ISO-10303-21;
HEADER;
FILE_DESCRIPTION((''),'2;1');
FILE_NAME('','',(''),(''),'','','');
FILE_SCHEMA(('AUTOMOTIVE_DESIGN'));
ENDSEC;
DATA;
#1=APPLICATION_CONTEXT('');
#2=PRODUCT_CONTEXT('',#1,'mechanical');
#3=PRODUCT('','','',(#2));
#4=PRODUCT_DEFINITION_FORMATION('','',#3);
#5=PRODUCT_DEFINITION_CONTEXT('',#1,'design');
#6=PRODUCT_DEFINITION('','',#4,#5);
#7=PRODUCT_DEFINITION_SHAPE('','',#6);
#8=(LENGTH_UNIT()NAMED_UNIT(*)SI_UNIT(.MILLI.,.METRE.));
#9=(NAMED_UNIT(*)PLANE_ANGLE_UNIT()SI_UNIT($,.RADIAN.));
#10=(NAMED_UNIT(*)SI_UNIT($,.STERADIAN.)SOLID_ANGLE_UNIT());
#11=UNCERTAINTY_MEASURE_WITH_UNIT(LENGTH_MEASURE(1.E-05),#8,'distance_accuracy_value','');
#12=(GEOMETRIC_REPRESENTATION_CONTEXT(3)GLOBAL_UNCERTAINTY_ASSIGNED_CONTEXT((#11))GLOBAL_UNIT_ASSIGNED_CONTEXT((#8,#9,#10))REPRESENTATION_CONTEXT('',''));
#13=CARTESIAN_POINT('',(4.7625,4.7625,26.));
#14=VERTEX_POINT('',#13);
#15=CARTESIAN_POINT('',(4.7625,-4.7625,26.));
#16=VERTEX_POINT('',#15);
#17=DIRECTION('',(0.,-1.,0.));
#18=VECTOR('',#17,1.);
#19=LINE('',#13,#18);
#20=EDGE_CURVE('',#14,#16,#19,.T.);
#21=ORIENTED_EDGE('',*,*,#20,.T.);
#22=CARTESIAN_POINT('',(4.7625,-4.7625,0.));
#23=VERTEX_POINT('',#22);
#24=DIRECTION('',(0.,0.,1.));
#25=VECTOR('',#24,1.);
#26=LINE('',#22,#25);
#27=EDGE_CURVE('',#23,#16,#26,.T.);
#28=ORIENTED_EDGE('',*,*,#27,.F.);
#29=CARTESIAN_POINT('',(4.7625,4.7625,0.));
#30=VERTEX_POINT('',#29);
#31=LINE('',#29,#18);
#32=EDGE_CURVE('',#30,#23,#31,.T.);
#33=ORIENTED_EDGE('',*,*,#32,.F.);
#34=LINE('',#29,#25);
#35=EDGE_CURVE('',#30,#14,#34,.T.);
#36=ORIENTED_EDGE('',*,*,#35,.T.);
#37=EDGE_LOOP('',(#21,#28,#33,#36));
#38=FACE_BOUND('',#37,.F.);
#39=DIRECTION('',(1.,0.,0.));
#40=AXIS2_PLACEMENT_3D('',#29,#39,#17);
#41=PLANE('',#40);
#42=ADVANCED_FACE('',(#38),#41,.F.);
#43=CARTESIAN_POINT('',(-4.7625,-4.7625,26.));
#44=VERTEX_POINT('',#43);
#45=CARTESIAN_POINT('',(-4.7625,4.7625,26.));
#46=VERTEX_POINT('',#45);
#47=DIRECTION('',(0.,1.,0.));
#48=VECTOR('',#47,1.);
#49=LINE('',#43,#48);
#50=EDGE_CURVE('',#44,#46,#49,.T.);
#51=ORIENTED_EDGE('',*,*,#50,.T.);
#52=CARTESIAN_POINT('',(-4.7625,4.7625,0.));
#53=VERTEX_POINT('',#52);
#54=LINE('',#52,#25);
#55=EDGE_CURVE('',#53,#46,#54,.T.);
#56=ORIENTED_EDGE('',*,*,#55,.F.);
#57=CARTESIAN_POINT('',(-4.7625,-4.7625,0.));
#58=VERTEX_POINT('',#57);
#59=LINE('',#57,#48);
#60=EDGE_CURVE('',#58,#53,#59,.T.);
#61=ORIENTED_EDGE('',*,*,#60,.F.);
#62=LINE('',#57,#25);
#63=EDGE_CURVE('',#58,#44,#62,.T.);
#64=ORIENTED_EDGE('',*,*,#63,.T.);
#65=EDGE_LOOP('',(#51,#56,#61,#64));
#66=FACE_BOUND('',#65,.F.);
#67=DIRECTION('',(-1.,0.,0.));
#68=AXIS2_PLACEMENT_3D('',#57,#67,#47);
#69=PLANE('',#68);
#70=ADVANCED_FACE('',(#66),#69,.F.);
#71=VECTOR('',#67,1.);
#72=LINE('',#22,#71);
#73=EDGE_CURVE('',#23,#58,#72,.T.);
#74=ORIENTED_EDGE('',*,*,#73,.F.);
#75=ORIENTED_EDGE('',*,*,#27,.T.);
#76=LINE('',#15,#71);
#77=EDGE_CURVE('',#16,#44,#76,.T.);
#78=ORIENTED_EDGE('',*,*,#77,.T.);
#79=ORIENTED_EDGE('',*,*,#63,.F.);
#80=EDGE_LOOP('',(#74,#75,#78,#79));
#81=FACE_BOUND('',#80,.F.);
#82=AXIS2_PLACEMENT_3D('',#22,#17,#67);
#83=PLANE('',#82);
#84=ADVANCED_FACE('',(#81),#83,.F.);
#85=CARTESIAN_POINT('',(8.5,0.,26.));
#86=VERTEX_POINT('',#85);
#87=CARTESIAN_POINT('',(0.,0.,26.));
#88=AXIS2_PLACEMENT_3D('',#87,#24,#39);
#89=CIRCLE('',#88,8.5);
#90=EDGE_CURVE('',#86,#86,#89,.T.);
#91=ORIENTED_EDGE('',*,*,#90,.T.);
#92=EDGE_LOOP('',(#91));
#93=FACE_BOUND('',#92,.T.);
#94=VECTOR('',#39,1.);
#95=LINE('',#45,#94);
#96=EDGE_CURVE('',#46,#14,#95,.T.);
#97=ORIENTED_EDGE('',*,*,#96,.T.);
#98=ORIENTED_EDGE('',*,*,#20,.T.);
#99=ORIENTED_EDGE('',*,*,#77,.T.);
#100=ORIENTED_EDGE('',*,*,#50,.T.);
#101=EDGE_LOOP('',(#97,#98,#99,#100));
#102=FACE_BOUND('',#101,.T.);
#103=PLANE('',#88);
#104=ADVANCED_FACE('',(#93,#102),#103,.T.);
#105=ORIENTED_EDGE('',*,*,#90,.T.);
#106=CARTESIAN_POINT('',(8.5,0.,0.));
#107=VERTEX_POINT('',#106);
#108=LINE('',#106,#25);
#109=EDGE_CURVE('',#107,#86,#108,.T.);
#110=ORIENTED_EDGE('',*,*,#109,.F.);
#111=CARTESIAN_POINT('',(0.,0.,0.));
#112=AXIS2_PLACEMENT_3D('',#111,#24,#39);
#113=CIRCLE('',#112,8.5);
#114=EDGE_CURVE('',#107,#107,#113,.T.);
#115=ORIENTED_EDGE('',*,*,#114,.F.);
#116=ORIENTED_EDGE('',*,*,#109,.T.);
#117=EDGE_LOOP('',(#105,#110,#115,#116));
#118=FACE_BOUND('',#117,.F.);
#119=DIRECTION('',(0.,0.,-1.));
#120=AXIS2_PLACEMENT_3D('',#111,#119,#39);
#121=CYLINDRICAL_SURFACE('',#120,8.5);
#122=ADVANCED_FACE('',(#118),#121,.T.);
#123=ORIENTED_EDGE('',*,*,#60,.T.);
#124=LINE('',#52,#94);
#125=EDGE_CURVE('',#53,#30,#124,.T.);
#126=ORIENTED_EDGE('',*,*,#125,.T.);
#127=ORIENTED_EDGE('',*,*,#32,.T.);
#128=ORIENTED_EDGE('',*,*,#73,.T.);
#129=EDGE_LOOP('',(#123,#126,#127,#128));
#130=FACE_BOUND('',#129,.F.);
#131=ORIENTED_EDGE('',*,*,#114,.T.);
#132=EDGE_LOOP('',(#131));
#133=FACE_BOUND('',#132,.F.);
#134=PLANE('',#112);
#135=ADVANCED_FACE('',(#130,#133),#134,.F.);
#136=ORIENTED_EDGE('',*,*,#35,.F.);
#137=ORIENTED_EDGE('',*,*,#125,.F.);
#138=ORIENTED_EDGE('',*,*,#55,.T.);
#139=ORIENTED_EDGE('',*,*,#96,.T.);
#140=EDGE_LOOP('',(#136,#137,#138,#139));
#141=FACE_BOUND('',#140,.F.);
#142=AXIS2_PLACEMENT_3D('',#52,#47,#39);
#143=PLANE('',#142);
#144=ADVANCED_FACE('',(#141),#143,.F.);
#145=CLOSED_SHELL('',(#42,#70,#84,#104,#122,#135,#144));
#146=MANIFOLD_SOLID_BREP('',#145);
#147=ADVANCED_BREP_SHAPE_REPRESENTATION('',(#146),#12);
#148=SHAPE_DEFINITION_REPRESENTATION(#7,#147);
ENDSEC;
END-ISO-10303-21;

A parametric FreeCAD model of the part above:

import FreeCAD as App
import Part
import Sketcher

V = App.Vector
Q = App.Units.Quantity

doc = App.newDocument("Part")
body = doc.addObject("PartDesign::Body", "Body")

# Sketch on XY plane
sketch1 = body.newObject("Sketcher::SketchObject", "Sketch")
sketch1.AttachmentSupport = (doc.getObject("XY_Plane"), [""])
sketch1.MapMode = "FlatFace"
sketch1.addGeometry([
    Part.Circle(V(0, 0, 0), V(0, 0, 1), 8.5),  # 0
    Part.LineSegment(V(4.7625, -4.7625, 0), V(-4.7625, -4.7625, 0)),  # 1
    Part.LineSegment(V(-4.7625, -4.7625, 0), V(-4.7625, 4.7625, 0)),  # 2
    Part.LineSegment(V(-4.7625, 4.7625, 0), V(4.7625, 4.7625, 0)),  # 3
    Part.LineSegment(V(4.7625, 4.7625, 0), V(4.7625, -4.7625, 0)),  # 4
], False)
sketch1.addConstraint([
    Sketcher.Constraint("Coincident", 1, 2, 2, 1),
    Sketcher.Constraint("Coincident", 2, 2, 3, 1),
    Sketcher.Constraint("Coincident", 3, 2, 4, 1),
    Sketcher.Constraint("Coincident", 4, 2, 1, 1),
    Sketcher.Constraint("Horizontal", 1),
    Sketcher.Constraint("Vertical", 2),
    Sketcher.Constraint("Horizontal", 3),
    Sketcher.Constraint("Vertical", 4),
    Sketcher.Constraint("Coincident", 0, 3, -1, 1),
    Sketcher.Constraint("Symmetric", 1, 2, 3, 2, -1, 1),
    Sketcher.Constraint("Equal", 3, 2),
    Sketcher.Constraint("Diameter", 0, Q("17 mm")),
    Sketcher.Constraint("DistanceX", 1, 2, 1, 1, Q("9.525 mm")),
])
pad1 = body.newObject("PartDesign::Pad", "Pad")
pad1.Profile = sketch1
pad1.Length = 26

doc.recompute()
